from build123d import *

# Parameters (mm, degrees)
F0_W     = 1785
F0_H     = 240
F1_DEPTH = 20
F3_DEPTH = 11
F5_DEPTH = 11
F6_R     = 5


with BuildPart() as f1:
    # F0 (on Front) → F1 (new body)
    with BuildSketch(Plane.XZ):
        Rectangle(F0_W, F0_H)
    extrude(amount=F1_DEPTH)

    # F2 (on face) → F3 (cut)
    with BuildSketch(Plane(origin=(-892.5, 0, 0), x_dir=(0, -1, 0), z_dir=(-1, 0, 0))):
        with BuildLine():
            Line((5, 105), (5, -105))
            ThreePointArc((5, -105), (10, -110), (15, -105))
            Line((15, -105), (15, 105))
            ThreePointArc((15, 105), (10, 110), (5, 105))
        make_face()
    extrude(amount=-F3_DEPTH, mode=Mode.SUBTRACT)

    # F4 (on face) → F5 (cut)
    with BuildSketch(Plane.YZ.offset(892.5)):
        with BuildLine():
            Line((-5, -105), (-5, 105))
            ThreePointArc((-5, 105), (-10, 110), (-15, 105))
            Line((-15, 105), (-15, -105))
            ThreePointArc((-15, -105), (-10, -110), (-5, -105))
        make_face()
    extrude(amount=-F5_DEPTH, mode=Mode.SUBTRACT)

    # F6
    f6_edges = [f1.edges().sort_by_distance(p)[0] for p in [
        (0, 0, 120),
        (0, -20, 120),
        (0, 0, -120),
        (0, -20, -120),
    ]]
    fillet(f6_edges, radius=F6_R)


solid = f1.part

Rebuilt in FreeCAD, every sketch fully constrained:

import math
import FreeCAD as App
import Part
import Sketcher
from FreeCAD import Vector
Q = App.Units.Quantity


def edges_at(feature, points):
    """Names of the edges that pass closest to the given points."""
    edges = feature.Shape.Edges
    near = lambda p: min(range(len(edges)), key=lambda i: edges[i].distToShape(Part.Vertex(*p))[0])
    return sorted({f"Edge{near(p) + 1}" for p in points})

doc = App.newDocument("Part")
body = doc.addObject("PartDesign::Body", "Body")

sketch1 = doc.addObject("Sketcher::SketchObject", "Sketch")
body.addObject(sketch1)
sketch1.AttachmentSupport = (doc.XZ_Plane, [""])
sketch1.MapMode = "FlatFace"
sketch1.addGeometry(Part.LineSegment(Vector(-892, 120, 0), Vector(-892, -120, 0)), False)
sketch1.addGeometry(Part.LineSegment(Vector(-892, -120, 0), Vector(892, -120, 0)), False)
sketch1.addGeometry(Part.LineSegment(Vector(892, -120, 0), Vector(892, 120, 0)), False)
sketch1.addGeometry(Part.LineSegment(Vector(892, 120, 0), Vector(-892, 120, 0)), False)
sketch1.addConstraint(Sketcher.Constraint("Coincident", 0, 2, 1, 1))
sketch1.addConstraint(Sketcher.Constraint("Coincident", 1, 2, 2, 1))
sketch1.addConstraint(Sketcher.Constraint("Coincident", 2, 2, 3, 1))
sketch1.addConstraint(Sketcher.Constraint("Coincident", 3, 2, 0, 1))
sketch1.addConstraint(Sketcher.Constraint("Vertical", 0))
sketch1.addConstraint(Sketcher.Constraint("Horizontal", 1))
sketch1.addConstraint(Sketcher.Constraint("Vertical", 2))
sketch1.addConstraint(Sketcher.Constraint("Horizontal", 3))
sketch1.addConstraint(Sketcher.Constraint("Symmetric", 0, 2, 2, 2, -1, 1))
sketch1.addConstraint(Sketcher.Constraint("DistanceX", 1, 1, 1, 2, Q("1785 mm")))
sketch1.addConstraint(Sketcher.Constraint("DistanceY", 0, 2, 0, 1, Q("240 mm")))
pad1 = doc.addObject("PartDesign::Pad", "Pad")
body.addObject(pad1)
pad1.Profile = sketch1
pad1.Length = 20

sketch2 = doc.addObject("Sketcher::SketchObject", "Sketch001")
body.addObject(sketch2)
sketch2.AttachmentSupport = (doc.YZ_Plane, [""])
sketch2.MapMode = "FlatFace"
sketch2.AttachmentOffset = App.Placement(Vector(0, 0, -892.5), App.Rotation())
sketch2.addGeometry(Part.LineSegment(Vector(-5, 105, 0), Vector(-5, -105, 0)), False)
sketch2.addGeometry(Part.ArcOfCircle(Part.Circle(Vector(-10, -105, 0), Vector(0, 0, 1), 5), math.radians(180), math.radians(360)), False)
sketch2.addGeometry(Part.LineSegment(Vector(-15, -105, 0), Vector(-15, 105, 0)), False)
sketch2.addGeometry(Part.ArcOfCircle(Part.Circle(Vector(-10, 105, 0), Vector(0, 0, 1), 5), math.radians(0), math.radians(180)), False)
sketch2.addConstraint(Sketcher.Constraint("Tangent", 0, 2, 1, 2))
sketch2.addConstraint(Sketcher.Constraint("Tangent", 1, 1, 2, 1))
sketch2.addConstraint(Sketcher.Constraint("Tangent", 2, 2, 3, 2))
sketch2.addConstraint(Sketcher.Constraint("Tangent", 3, 1, 0, 1))
sketch2.addConstraint(Sketcher.Constraint("Vertical", 0))
sketch2.addConstraint(Sketcher.Constraint("Vertical", 2))
sketch2.addConstraint(Sketcher.Constraint("Radius", 1, Q("5 mm")))
sketch2.addConstraint(Sketcher.Constraint("DistanceY", 0, 2, 0, 1, Q("210 mm")))
sketch2.addConstraint(Sketcher.Constraint("DistanceX", 1, 3, -1, 1, Q("10 mm")))
sketch2.addConstraint(Sketcher.Constraint("DistanceY", 1, 3, -1, 1, Q("105 mm")))
pocket1 = doc.addObject("PartDesign::Pocket", "Pocket")
body.addObject(pocket1)
pocket1.Profile = sketch2
pocket1.Length = 11
pocket1.Reversed = True

sketch3 = doc.addObject("Sketcher::SketchObject", "Sketch002")
body.addObject(sketch3)
sketch3.AttachmentSupport = (doc.YZ_Plane, [""])
sketch3.MapMode = "FlatFace"
sketch3.AttachmentOffset = App.Placement(Vector(0, 0, 892.5), App.Rotation())
sketch3.addGeometry(Part.LineSegment(Vector(-5, -105, 0), Vector(-5, 105, 0)), False)
sketch3.addGeometry(Part.ArcOfCircle(Part.Circle(Vector(-10, 105, 0), Vector(0, 0, 1), 5), math.radians(0), math.radians(180)), False)
sketch3.addGeometry(Part.LineSegment(Vector(-15, 105, 0), Vector(-15, -105, 0)), False)
sketch3.addGeometry(Part.ArcOfCircle(Part.Circle(Vector(-10, -105, 0), Vector(0, 0, 1), 5), math.radians(180), math.radians(360)), False)
sketch3.addConstraint(Sketcher.Constraint("Tangent", 0, 2, 1, 1))
sketch3.addConstraint(Sketcher.Constraint("Tangent", 1, 2, 2, 1))
sketch3.addConstraint(Sketcher.Constraint("Tangent", 2, 2, 3, 1))
sketch3.addConstraint(Sketcher.Constraint("Tangent", 3, 2, 0, 1))
sketch3.addConstraint(Sketcher.Constraint("Vertical", 0))
sketch3.addConstraint(Sketcher.Constraint("Vertical", 2))
sketch3.addConstraint(Sketcher.Constraint("Radius", 1, Q("5 mm")))
sketch3.addConstraint(Sketcher.Constraint("DistanceY", 0, 1, 0, 2, Q("210 mm")))
sketch3.addConstraint(Sketcher.Constraint("DistanceX", 1, 3, -1, 1, Q("10 mm")))
sketch3.addConstraint(Sketcher.Constraint("DistanceY", -1, 1, 1, 3, Q("105 mm")))
pocket2 = doc.addObject("PartDesign::Pocket", "Pocket001")
body.addObject(pocket2)
pocket2.Profile = sketch3
pocket2.Length = 11
doc.recompute()

fillet = doc.addObject("PartDesign::Fillet", "Fillet")
body.addObject(fillet)
fillet.Base = (pocket2, edges_at(pocket2, [
    (0, 0, 120),
    (0, -20, 120),
    (0, 0, -120),
    (0, -20, -120),
]))
fillet.Radius = 5

doc.recompute()
